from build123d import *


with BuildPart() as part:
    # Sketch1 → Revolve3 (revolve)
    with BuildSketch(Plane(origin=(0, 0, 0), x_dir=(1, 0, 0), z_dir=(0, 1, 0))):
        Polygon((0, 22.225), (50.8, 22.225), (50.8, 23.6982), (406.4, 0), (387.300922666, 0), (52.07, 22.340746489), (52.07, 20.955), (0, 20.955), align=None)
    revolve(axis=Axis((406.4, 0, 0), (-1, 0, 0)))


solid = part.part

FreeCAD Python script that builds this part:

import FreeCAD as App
import Part
import Sketcher
from FreeCAD import Vector
Q = App.Units.Quantity

doc = App.newDocument("Part")
body = doc.addObject("PartDesign::Body", "Body")

# Sketch on XZ plane
sketch1 = body.newObject("Sketcher::SketchObject", "Sketch")
sketch1.AttachmentSupport = (doc.getObject("XZ_Plane"), [""])
sketch1.MapMode = "FlatFace"
sketch1.addGeometry([
    Part.LineSegment(Vector(50.8, -22.2, 0), Vector(0, -22.2, 0)),  # 0
    Part.LineSegment(Vector(0, -22.2, 0), Vector(0, -21, 0)),  # 1
    Part.LineSegment(Vector(0, -21, 0), Vector(52.1, -21, 0)),  # 2
    Part.LineSegment(Vector(52.1, -21, 0), Vector(52.1, -22.3, 0)),  # 3
    Part.LineSegment(Vector(52.1, -22.3, 0), Vector(387.3, 0, 0)),  # 4
    Part.LineSegment(Vector(387.3, 0, 0), Vector(406.4, 0, 0)),  # 5
    Part.LineSegment(Vector(406.4, 0, 0), Vector(50.8, -23.7, 0)),  # 6
    Part.LineSegment(Vector(50.8, -23.7, 0), Vector(50.8, -22.2, 0)),  # 7
], False)
sketch1.addConstraint([
    Sketcher.Constraint("Coincident", 0, 2, 1, 1),
    Sketcher.Constraint("Coincident", 1, 2, 2, 1),
    Sketcher.Constraint("Coincident", 2, 2, 3, 1),
    Sketcher.Constraint("Coincident", 3, 2, 4, 1),
    Sketcher.Constraint("Coincident", 4, 2, 5, 1),
    Sketcher.Constraint("Coincident", 5, 2, 6, 1),
    Sketcher.Constraint("Coincident", 6, 2, 7, 1),
    Sketcher.Constraint("Coincident", 7, 2, 0, 1),
    Sketcher.Constraint("Horizontal", 0),
    Sketcher.Constraint("Vertical", 1),
    Sketcher.Constraint("Horizontal", 2),
    Sketcher.Constraint("Vertical", 3),
    Sketcher.Constraint("Horizontal", 5),
    Sketcher.Constraint("Vertical", 7),
    Sketcher.Constraint("PointOnObject", 0, 2, -2),
    Sketcher.Constraint("PointOnObject", 4, 2, -1),
    Sketcher.Constraint("Parallel", 4, 6),
    Sketcher.Constraint("DistanceX", 0, 2, 0, 1, Q("2 in")),
    Sketcher.Constraint("DistanceX", -1, 1, 5, 2, Q("16 in")),
    Sketcher.Constraint("DistanceX", 2, 1, 2, 2, Q("2.05 in")),
    Sketcher.Constraint("DistanceY", 1, 1, 1, 2, Q("0.05 in")),
    Sketcher.Constraint("DistanceY", 7, 1, 7, 2, Q("0.058 in")),
    Sketcher.Constraint("DistanceY", 0, 2, -1, 1, Q("0.875 in")),
    Sketcher.Constraint("DistanceX", 5, 1, 5, 2, 19.099077),
])
revolution = body.newObject("PartDesign::Revolution", "Revolution")
revolution.Profile = sketch1
revolution.ReferenceAxis = (sketch1, ["H_Axis"])
revolution.Angle = 360

doc.recompute()
